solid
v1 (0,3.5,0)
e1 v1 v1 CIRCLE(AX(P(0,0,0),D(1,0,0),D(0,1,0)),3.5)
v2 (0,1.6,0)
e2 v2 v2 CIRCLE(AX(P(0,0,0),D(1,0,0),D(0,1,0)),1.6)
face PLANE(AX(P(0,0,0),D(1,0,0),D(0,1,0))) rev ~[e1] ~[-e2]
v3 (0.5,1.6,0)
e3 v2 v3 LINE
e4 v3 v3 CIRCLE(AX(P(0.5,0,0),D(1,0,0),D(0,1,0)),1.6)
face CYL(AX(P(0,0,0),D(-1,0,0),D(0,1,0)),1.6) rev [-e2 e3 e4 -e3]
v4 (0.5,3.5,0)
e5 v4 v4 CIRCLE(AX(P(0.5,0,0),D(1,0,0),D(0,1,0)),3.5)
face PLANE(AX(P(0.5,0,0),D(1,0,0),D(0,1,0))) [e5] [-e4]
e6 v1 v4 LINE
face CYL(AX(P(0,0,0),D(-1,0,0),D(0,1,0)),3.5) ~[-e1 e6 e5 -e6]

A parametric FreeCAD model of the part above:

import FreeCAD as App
import Part
import Sketcher

V = App.Vector

doc = App.newDocument("Part")
params = doc.addObject("Spreadsheet::Sheet", "Params")
for row, (alias, value) in enumerate([
    ("sketch1_diameter", "7 mm"),
    ("sketch1_diameter2", "3.2 mm"),
    ("pad1_length", "0.5 mm"),
], start=1):
    params.set(f"A{row}", alias)
    params.set(f"B{row}", "=" + value)
    params.setAlias(f"B{row}", alias)

body = doc.addObject("PartDesign::Body", "Body")

# Sketch on YZ plane
sketch1 = doc.addObject("Sketcher::SketchObject", "Sketch")
body.addObject(sketch1)
sketch1.AttachmentSupport = (doc.YZ_Plane, [""])
sketch1.MapMode = "FlatFace"
sketch1.addGeometry([
    Part.Circle(V(0, 0, 0), V(0, 0, 1), 3.5),
    Part.Circle(V(0, 0, 0), V(0, 0, 1), 1.6),
], False)
sketch1.addConstraint([
    Sketcher.Constraint("Coincident", 0, 3, -1, 1),
    Sketcher.Constraint("Coincident", 1, 3, -1, 1),
    Sketcher.Constraint("Diameter", 0, 7.0),
    Sketcher.Constraint("Diameter", 1, 3.2),
])
sketch1.setExpression("Constraints[2]", "Params.sketch1_diameter")
sketch1.setExpression("Constraints[3]", "Params.sketch1_diameter2")
pad1 = doc.addObject("PartDesign::Pad", "Pad")
body.addObject(pad1)
pad1.Profile = sketch1
pad1.setExpression("Length", "Params.pad1_length")

doc.recompute()
